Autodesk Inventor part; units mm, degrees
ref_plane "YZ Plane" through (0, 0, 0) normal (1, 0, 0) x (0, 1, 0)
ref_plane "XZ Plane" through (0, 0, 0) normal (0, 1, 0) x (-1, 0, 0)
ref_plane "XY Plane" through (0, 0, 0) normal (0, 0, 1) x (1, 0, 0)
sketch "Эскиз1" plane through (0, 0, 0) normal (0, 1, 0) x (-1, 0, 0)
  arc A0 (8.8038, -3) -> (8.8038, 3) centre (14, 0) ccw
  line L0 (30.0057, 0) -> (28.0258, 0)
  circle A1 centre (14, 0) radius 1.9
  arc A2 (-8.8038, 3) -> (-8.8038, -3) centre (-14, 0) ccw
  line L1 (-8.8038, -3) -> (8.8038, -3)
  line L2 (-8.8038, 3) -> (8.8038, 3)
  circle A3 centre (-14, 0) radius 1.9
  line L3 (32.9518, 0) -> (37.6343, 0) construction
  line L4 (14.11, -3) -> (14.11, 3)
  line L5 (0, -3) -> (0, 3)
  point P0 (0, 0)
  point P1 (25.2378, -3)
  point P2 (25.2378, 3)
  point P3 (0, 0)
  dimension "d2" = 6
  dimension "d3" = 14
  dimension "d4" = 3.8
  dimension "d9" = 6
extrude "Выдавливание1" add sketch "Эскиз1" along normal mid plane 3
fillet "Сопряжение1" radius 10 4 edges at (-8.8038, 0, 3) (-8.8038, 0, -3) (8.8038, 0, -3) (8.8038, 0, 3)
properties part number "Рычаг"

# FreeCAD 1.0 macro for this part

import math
import FreeCAD as App
import Part
import Sketcher


def edges_at(feature, points):
    """Names of the edges that pass closest to the given points."""
    edges = feature.Shape.Edges
    near = lambda p: min(range(len(edges)), key=lambda i: edges[i].distToShape(Part.Vertex(*p))[0])
    return sorted({f"Edge{near(p) + 1}" for p in points})

doc = App.newDocument("Part")
body = doc.addObject("PartDesign::Body", "Body")

# Sketch on XZ plane
sketch1 = doc.addObject("Sketcher::SketchObject", "Sketch")
body.addObject(sketch1)
sketch1.AttachmentSupport = (doc.XZ_Plane, [""])
sketch1.MapMode = "FlatFace"
sketch1.addGeometry([
    Part.ArcOfCircle(Part.Circle(App.Vector(-14, 0, 0), App.Vector(0, 0, 1), 6), math.radians(30), math.radians(330)),  # 0
    Part.LineSegment(App.Vector(-8.8, 3, 0), App.Vector(8.8, 3, 0)),  # 1
    Part.ArcOfCircle(Part.Circle(App.Vector(14, 0, 0), App.Vector(0, 0, 1), 6), math.radians(-150), math.radians(150)),  # 2
    Part.LineSegment(App.Vector(8.8, -3, 0), App.Vector(-8.8, -3, 0)),  # 3
    Part.Circle(App.Vector(-14, 0, 0), App.Vector(0, 0, 1), 1.9),  # 4
    Part.Circle(App.Vector(14, 0, 0), App.Vector(0, 0, 1), 1.9),  # 5
], False)
sketch1.addConstraint([
    Sketcher.Constraint("Coincident", 0, 1, 1, 1),
    Sketcher.Constraint("Coincident", 1, 2, 2, 2),
    Sketcher.Constraint("Coincident", 2, 1, 3, 1),
    Sketcher.Constraint("Coincident", 3, 2, 0, 2),
    Sketcher.Constraint("Horizontal", 1),
    Sketcher.Constraint("Horizontal", 3),
    Sketcher.Constraint("Coincident", 4, 3, 0, 3),
    Sketcher.Constraint("Coincident", 5, 3, 2, 3),
    Sketcher.Constraint("Equal", 0, 2),
    Sketcher.Constraint("Equal", 4, 5),
    Sketcher.Constraint("Symmetric", 0, 3, 2, 3, -1, 1),
    Sketcher.Constraint("Symmetric", 1, 2, 2, 1, -1),
    Sketcher.Constraint("Radius", 0, 6.0),
    Sketcher.Constraint("Diameter", 4, 3.8),
    Sketcher.Constraint("DistanceX", 0, 3, -1, 1, 14.0),
    Sketcher.Constraint("DistanceY", 2, 1, 1, 2, 6.0),
])
pad1 = doc.addObject("PartDesign::Pad", "Pad")
body.addObject(pad1)
pad1.Profile = sketch1
pad1.Length = 3
pad1.Midplane = True
doc.recompute()

fillet = doc.addObject("PartDesign::Fillet", "Fillet")
body.addObject(fillet)
fillet.Base = (pad1, edges_at(pad1, [
    (-8.804, 0, 3),
    (-8.804, 0, -3),
    (8.804, 0, -3),
    (8.804, 0, 3),
]))
fillet.Radius = 10

doc.recompute()
